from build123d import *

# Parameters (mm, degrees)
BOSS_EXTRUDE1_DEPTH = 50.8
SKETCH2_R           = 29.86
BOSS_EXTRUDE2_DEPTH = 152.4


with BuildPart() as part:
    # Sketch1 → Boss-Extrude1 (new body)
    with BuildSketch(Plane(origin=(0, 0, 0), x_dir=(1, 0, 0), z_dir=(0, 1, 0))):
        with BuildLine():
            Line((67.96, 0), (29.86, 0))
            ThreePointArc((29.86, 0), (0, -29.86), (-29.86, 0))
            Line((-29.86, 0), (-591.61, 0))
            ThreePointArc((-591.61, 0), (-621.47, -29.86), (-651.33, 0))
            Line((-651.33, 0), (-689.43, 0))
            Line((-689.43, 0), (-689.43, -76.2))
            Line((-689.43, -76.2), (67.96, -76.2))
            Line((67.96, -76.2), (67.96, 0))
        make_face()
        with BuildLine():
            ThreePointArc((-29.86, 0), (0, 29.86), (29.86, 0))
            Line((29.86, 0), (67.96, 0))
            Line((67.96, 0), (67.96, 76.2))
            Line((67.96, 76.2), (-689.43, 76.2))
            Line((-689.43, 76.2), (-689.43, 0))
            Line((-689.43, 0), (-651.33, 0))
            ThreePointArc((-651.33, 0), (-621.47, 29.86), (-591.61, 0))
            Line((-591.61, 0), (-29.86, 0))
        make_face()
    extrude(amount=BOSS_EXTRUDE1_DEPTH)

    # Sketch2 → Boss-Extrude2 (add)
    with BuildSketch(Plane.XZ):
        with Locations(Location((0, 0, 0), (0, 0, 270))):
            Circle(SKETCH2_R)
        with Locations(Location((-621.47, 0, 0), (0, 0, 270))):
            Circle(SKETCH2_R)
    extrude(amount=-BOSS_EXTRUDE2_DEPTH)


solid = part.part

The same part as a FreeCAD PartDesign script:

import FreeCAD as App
import Part
import Sketcher
Q = App.Units.Quantity


def add_polygon(sketch, points):
    """Adds a closed chain of lines whose ends are joined by coincident constraints."""
    first, n = sketch.GeometryCount, len(points)
    for a, b in zip(points, points[1:] + points[:1]):
        sketch.addGeometry(Part.LineSegment(App.Vector(*a, 0), App.Vector(*b, 0)), False)
    for i in range(n):
        sketch.addConstraint(Sketcher.Constraint("Coincident", first + i, 2, first + (i + 1) % n, 1))

doc = App.newDocument("Part")
body = doc.addObject("PartDesign::Body", "Body")

sketch1 = body.newObject("Sketcher::SketchObject", "Sketch")
sketch1.AttachmentSupport = (doc.getObject("XZ_Plane"), [""])
sketch1.MapMode = "FlatFace"
add_polygon(sketch1, [(-689, 76), (68, 76), (68, -76), (-689, -76)])
sketch1.addGeometry(Part.Circle(App.Vector(0, 0, 0), App.Vector(0, 0, 1), 30), False)
sketch1.addGeometry(Part.Circle(App.Vector(-621, 0, 0), App.Vector(0, 0, 1), 30), False)
sketch1.addConstraint([
    Sketcher.Constraint("Horizontal", 0),
    Sketcher.Constraint("Vertical", 1),
    Sketcher.Constraint("Horizontal", 2),
    Sketcher.Constraint("Vertical", 3),
    Sketcher.Constraint("Coincident", 4, 3, -1, 1),
    Sketcher.Constraint("Equal", 4, 5),
    Sketcher.Constraint("PointOnObject", 5, 3, -1),
    Sketcher.Constraint("DistanceY", 1, 2, 1, 1, Q("6 in")),
    Sketcher.Constraint("DistanceY", -1, 1, 0, 2, Q("3 in")),
    Sketcher.Constraint("Diameter", 4, Q("59.72 mm")),
    Sketcher.Constraint("DistanceX", 0, 1, 0, 2, Q("757.39 mm")),
    Sketcher.Constraint("DistanceX", 5, 3, -1, 1, Q("621.47 mm")),
    Sketcher.Constraint("DistanceX", -1, 1, 0, 2, Q("67.96 mm")),
])
pad1 = body.newObject("PartDesign::Pad", "Pad")
pad1.Profile = sketch1
pad1.Length = Q("2 in")
pad1.Reversed = True

sketch2 = body.newObject("Sketcher::SketchObject", "Sketch001")
sketch2.AttachmentSupport = (doc.getObject("XZ_Plane"), [""])
sketch2.MapMode = "FlatFace"
sketch2.addGeometry([
    Part.Circle(App.Vector(0, 0, 0), App.Vector(0, 0, 1), 30),
    Part.Circle(App.Vector(-621, 0, 0), App.Vector(0, 0, 1), 30),
], False)
sketch2.addConstraint([
    Sketcher.Constraint("Coincident", 0, 3, -1, 1),
    Sketcher.Constraint("Equal", 0, 1),
    Sketcher.Constraint("PointOnObject", 1, 3, -1),
    Sketcher.Constraint("Diameter", 0, Q("59.72 mm")),
    Sketcher.Constraint("DistanceX", 1, 3, -1, 1, Q("621.47 mm")),
])
pad2 = body.newObject("PartDesign::Pad", "Pad001")
pad2.Profile = sketch2
pad2.Length = Q("6 in")
pad2.Reversed = True

doc.recompute()
